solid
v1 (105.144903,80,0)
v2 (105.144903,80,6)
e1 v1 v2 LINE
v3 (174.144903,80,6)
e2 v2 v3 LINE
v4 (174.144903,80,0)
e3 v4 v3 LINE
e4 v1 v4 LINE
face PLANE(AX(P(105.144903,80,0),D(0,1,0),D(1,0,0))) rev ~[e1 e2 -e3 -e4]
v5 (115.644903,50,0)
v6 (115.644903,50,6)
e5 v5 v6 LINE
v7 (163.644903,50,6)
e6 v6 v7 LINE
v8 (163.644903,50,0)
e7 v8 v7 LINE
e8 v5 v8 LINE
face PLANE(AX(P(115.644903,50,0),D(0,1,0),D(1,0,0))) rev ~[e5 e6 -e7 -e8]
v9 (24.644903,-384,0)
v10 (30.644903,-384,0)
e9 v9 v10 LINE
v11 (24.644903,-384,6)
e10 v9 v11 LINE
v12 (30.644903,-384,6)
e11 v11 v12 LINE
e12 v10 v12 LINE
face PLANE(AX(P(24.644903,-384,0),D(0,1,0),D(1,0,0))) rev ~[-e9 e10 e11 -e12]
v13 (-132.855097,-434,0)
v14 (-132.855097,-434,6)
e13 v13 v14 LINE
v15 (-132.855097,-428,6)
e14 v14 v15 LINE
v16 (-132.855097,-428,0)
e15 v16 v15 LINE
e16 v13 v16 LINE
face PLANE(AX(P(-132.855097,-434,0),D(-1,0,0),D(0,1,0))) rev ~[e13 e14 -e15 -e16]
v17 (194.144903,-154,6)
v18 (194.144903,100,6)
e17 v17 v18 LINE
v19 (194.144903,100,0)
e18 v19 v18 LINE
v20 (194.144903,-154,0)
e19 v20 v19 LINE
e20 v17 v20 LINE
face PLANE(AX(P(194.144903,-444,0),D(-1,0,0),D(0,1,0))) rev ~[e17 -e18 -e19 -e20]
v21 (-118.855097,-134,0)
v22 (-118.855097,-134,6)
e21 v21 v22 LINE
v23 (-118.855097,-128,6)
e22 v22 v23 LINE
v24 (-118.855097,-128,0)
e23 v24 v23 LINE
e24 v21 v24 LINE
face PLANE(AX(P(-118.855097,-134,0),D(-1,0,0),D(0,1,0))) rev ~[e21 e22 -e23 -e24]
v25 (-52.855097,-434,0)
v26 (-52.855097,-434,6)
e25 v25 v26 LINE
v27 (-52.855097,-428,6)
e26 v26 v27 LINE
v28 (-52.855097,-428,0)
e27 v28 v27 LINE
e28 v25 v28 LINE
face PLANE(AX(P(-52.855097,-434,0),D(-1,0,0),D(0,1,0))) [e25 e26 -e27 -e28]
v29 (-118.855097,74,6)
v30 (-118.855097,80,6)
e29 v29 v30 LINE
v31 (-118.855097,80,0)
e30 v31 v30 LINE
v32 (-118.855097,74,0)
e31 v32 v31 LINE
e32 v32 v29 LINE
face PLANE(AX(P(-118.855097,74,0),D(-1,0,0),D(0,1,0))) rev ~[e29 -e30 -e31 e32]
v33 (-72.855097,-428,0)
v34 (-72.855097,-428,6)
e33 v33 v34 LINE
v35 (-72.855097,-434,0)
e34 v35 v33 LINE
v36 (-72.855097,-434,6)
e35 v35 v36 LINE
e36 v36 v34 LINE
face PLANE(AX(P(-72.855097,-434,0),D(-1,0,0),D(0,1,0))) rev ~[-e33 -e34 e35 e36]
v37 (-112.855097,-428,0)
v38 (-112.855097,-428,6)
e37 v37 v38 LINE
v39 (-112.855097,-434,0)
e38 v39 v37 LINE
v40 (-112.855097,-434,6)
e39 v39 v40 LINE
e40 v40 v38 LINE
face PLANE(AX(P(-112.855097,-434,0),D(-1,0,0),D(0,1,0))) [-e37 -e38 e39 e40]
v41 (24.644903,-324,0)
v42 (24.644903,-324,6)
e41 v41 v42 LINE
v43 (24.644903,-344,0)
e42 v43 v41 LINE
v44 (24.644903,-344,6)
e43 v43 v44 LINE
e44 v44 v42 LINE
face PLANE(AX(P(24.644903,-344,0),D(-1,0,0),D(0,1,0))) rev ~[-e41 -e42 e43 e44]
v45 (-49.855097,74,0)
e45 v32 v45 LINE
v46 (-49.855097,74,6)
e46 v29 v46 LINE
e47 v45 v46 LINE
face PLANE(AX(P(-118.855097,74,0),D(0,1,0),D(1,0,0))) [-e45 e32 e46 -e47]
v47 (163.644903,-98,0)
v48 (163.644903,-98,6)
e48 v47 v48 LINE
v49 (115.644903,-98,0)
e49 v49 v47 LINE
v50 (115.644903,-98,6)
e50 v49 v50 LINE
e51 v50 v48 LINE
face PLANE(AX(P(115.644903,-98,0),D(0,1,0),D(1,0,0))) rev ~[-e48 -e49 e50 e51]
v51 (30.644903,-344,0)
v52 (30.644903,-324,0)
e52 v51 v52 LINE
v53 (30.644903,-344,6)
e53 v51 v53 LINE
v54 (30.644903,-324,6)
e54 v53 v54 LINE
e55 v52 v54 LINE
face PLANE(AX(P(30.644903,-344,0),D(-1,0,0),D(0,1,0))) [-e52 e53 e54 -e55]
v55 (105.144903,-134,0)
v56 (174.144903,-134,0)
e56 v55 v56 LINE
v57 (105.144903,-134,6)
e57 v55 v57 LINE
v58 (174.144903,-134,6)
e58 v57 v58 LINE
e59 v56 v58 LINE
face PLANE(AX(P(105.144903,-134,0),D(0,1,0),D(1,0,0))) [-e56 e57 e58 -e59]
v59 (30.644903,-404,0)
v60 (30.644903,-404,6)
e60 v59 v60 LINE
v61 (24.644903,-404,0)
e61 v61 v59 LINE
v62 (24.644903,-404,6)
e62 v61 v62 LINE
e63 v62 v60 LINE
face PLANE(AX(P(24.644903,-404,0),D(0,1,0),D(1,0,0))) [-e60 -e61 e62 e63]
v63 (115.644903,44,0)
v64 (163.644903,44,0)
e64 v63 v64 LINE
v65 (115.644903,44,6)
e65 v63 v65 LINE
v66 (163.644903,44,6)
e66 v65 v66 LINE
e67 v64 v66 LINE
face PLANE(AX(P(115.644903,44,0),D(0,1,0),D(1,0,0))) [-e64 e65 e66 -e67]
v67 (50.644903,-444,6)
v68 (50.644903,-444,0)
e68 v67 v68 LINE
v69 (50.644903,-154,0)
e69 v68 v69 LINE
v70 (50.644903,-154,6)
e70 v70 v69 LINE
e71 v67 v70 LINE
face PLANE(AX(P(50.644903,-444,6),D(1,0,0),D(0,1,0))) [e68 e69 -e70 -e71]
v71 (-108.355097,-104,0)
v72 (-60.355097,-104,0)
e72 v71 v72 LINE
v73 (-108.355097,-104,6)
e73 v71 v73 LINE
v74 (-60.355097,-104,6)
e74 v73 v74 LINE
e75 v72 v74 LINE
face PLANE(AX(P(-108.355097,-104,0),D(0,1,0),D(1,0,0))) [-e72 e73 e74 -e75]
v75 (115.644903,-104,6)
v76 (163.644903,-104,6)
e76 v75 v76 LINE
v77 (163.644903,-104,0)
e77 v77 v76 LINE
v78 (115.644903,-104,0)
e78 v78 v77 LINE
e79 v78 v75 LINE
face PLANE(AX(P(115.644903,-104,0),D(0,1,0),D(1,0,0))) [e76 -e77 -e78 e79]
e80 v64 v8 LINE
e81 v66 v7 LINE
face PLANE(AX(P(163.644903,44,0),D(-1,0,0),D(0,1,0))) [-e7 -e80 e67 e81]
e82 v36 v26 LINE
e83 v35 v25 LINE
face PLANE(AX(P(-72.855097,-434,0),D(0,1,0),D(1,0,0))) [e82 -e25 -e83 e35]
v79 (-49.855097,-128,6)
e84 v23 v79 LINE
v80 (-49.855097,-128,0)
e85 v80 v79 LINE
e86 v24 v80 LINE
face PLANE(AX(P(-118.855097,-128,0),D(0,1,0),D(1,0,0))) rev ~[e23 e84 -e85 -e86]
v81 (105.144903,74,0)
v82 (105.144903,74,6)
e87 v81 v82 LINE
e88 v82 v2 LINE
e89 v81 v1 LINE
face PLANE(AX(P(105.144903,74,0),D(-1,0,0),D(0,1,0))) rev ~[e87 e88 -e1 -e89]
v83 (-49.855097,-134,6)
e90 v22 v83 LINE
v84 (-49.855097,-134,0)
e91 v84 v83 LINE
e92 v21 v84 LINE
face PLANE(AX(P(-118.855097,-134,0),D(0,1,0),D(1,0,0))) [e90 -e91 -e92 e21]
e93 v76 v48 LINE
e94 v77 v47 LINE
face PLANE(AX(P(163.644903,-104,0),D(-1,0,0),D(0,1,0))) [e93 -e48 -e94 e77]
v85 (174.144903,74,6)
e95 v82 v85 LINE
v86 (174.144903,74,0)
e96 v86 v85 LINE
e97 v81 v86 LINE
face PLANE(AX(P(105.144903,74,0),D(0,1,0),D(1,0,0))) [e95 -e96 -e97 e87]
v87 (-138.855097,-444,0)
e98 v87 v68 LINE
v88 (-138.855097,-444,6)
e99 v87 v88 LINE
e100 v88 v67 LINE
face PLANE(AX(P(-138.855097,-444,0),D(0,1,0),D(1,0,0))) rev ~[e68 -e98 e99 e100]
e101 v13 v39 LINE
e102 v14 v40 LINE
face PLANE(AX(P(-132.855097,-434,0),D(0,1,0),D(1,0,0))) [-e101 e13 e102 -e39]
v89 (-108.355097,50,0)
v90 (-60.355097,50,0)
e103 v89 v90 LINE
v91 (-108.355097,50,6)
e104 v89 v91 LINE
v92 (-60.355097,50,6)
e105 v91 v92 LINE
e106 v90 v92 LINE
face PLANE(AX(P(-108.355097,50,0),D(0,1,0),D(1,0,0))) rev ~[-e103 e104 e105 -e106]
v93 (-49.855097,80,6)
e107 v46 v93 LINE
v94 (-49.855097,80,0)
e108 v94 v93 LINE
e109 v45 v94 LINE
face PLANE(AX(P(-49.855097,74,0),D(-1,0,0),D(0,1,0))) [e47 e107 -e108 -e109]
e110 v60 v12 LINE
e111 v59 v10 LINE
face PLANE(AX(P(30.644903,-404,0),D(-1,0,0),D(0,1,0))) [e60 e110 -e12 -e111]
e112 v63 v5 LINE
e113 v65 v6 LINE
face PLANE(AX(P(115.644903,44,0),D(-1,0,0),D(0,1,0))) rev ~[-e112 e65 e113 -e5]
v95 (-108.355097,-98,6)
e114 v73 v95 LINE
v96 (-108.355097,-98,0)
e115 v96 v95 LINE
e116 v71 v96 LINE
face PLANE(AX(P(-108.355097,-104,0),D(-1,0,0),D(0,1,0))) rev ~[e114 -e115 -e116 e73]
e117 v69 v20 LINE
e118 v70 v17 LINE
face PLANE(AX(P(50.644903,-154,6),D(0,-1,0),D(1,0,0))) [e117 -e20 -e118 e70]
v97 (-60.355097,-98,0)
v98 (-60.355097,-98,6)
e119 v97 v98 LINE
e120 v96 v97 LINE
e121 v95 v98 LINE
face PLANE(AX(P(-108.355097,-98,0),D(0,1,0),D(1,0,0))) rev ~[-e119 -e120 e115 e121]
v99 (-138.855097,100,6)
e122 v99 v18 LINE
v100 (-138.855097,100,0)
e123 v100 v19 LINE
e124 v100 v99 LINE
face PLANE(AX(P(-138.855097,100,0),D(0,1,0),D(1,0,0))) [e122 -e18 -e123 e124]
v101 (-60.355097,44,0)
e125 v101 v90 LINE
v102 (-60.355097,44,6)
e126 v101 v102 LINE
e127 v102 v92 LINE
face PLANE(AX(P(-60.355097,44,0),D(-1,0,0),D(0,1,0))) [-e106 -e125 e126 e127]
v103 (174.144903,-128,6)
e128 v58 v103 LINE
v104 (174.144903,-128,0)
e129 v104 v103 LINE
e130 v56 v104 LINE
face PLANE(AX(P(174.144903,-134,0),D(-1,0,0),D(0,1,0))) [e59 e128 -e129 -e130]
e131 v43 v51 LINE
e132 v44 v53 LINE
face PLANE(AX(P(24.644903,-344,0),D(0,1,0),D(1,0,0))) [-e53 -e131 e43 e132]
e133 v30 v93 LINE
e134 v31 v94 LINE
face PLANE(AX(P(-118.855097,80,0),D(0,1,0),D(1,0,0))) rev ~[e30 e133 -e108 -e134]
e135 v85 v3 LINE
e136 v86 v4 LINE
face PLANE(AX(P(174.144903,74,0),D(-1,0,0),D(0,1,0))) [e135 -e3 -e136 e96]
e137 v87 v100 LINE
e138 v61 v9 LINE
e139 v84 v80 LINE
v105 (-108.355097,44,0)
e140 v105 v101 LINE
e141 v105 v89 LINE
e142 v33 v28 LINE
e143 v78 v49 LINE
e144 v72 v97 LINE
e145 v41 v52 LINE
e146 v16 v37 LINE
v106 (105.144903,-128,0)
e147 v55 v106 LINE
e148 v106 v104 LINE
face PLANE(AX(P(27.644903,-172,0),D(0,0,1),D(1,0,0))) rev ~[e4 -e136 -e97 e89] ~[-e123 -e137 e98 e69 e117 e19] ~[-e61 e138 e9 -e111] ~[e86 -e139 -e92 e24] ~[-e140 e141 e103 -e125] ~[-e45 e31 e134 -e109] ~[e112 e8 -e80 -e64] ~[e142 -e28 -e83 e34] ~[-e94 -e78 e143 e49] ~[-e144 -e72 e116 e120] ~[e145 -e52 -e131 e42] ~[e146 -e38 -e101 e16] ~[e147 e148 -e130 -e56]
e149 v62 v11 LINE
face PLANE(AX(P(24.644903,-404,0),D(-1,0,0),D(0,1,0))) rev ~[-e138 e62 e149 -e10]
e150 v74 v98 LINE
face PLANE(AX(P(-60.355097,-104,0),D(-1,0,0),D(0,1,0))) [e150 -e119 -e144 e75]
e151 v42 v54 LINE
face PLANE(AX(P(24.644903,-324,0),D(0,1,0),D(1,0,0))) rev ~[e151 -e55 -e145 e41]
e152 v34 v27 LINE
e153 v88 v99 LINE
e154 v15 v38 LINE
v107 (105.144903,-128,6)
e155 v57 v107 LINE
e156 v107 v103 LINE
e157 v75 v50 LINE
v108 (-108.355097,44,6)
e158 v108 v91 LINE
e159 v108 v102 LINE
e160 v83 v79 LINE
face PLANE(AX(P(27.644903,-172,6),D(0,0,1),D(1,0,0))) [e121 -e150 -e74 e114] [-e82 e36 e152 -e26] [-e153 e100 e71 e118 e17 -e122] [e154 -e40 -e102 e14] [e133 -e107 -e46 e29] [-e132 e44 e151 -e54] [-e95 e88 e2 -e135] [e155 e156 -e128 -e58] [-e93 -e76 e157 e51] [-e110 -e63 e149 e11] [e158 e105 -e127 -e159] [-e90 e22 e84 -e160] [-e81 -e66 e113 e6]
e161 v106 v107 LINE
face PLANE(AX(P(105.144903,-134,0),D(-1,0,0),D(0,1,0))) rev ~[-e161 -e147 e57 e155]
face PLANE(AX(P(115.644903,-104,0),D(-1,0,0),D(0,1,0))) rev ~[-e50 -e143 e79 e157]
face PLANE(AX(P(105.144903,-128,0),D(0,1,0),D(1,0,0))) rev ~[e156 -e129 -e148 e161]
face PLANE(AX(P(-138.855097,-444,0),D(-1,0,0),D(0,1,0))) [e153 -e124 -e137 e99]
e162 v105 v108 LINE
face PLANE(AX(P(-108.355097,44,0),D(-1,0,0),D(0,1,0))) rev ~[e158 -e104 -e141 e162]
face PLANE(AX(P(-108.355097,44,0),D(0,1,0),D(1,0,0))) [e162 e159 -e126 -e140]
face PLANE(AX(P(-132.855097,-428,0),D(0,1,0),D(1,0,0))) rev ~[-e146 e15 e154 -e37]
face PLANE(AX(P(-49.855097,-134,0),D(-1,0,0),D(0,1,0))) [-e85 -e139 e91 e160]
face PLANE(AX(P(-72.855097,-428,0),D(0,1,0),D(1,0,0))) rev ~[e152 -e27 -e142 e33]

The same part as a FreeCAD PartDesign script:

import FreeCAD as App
import Part
import Sketcher

V = App.Vector
Q = App.Units.Quantity


def add_polygon(sketch, points):
    """Adds a closed chain of lines whose ends are joined by coincident constraints."""
    first, n = sketch.GeometryCount, len(points)
    for a, b in zip(points, points[1:] + points[:1]):
        sketch.addGeometry(Part.LineSegment(App.Vector(*a, 0), App.Vector(*b, 0)), False)
    for i in range(n):
        sketch.addConstraint(Sketcher.Constraint("Coincident", first + i, 2, first + (i + 1) % n, 1))

doc = App.newDocument("Part")
body = doc.addObject("PartDesign::Body", "Body")

sketch1 = body.newObject("Sketcher::SketchObject", "Sketch")
sketch1.AttachmentSupport = (doc.getObject("XY_Plane"), [""])
sketch1.MapMode = "FlatFace"
add_polygon(sketch1, [(-139, 100), (-139, -444), (194, -444), (194, 100)])
add_polygon(sketch1, [(-113, -434), (-133, -434), (-133, -428), (-113, -428)])
add_polygon(sketch1, [(-53, -434), (-73, -434), (-73, -428), (-53, -428)])
add_polygon(sketch1, [(31, -404), (25, -404), (25, -384), (31, -384)])
add_polygon(sketch1, [(31, -344), (25, -344), (25, -324), (31, -324)])
add_polygon(sketch1, [(-50, -134), (-119, -134), (-119, -128), (-50, -128)])
add_polygon(sketch1, [(-60, -104), (-108, -104), (-108, -98), (-60, -98)])
add_polygon(sketch1, [(-60, 44), (-108, 44), (-108, 50), (-60, 50)])
add_polygon(sketch1, [(-50, 74), (-119, 74), (-119, 80), (-50, 80)])
add_polygon(sketch1, [(174, -134), (105, -134), (105, -128), (174, -128)])
add_polygon(sketch1, [(164, -104), (116, -104), (116, -98), (164, -98)])
add_polygon(sketch1, [(164, 44), (116, 44), (116, 50), (164, 50)])
add_polygon(sketch1, [(174, 74), (105, 74), (105, 80), (174, 80)])
sketch1.addConstraint([
    Sketcher.Constraint("Vertical", 0),
    Sketcher.Constraint("Horizontal", 1),
    Sketcher.Constraint("Vertical", 2),
    Sketcher.Constraint("Horizontal", 3),
    Sketcher.Constraint("Horizontal", 4),
    Sketcher.Constraint("Vertical", 5),
    Sketcher.Constraint("Horizontal", 6),
    Sketcher.Constraint("Vertical", 7),
    Sketcher.Constraint("Horizontal", 8),
    Sketcher.Constraint("Vertical", 9),
    Sketcher.Constraint("Horizontal", 10),
    Sketcher.Constraint("Vertical", 11),
    Sketcher.Constraint("Horizontal", 12),
    Sketcher.Constraint("Vertical", 13),
    Sketcher.Constraint("Horizontal", 14),
    Sketcher.Constraint("Vertical", 15),
    Sketcher.Constraint("Horizontal", 16),
    Sketcher.Constraint("Vertical", 17),
    Sketcher.Constraint("Horizontal", 18),
    Sketcher.Constraint("Vertical", 19),
    Sketcher.Constraint("Horizontal", 20),
    Sketcher.Constraint("Vertical", 21),
    Sketcher.Constraint("Horizontal", 22),
    Sketcher.Constraint("Vertical", 23),
    Sketcher.Constraint("Horizontal", 24),
    Sketcher.Constraint("Vertical", 25),
    Sketcher.Constraint("Horizontal", 26),
    Sketcher.Constraint("Vertical", 27),
    Sketcher.Constraint("Horizontal", 28),
    Sketcher.Constraint("Vertical", 29),
    Sketcher.Constraint("Horizontal", 30),
    Sketcher.Constraint("Vertical", 31),
    Sketcher.Constraint("Horizontal", 32),
    Sketcher.Constraint("Vertical", 33),
    Sketcher.Constraint("Horizontal", 34),
    Sketcher.Constraint("Vertical", 35),
    Sketcher.Constraint("Horizontal", 36),
    Sketcher.Constraint("Vertical", 37),
    Sketcher.Constraint("Horizontal", 38),
    Sketcher.Constraint("Vertical", 39),
    Sketcher.Constraint("Horizontal", 40),
    Sketcher.Constraint("Vertical", 41),
    Sketcher.Constraint("Horizontal", 42),
    Sketcher.Constraint("Vertical", 43),
    Sketcher.Constraint("Horizontal", 44),
    Sketcher.Constraint("Vertical", 45),
    Sketcher.Constraint("Horizontal", 46),
    Sketcher.Constraint("Vertical", 47),
    Sketcher.Constraint("Horizontal", 48),
    Sketcher.Constraint("Vertical", 49),
    Sketcher.Constraint("Horizontal", 50),
    Sketcher.Constraint("Vertical", 51),
    Sketcher.Constraint("Horizontal", 7, 2, 8, 2),
    Sketcher.Constraint("Horizontal", 6, 2, 9, 2),
    Sketcher.Constraint("Horizontal", 23, 2, 36, 2),
    Sketcher.Constraint("Horizontal", 22, 2, 37, 2),
    Sketcher.Constraint("Horizontal", 27, 2, 40, 2),
    Sketcher.Constraint("Horizontal", 26, 2, 41, 2),
    Sketcher.Constraint("Horizontal", 31, 2, 44, 2),
    Sketcher.Constraint("Horizontal", 30, 2, 45, 2),
    Sketcher.Constraint("Horizontal", 35, 2, 48, 2),
    Sketcher.Constraint("Horizontal", 34, 2, 49, 2),
    Sketcher.Constraint("Vertical", 13, 2, 16, 2),
    Sketcher.Constraint("Vertical", 15, 2, 18, 2),
    Sketcher.Constraint("Vertical", 25, 2, 28, 2),
    Sketcher.Constraint("Vertical", 27, 2, 30, 2),
    Sketcher.Constraint("Vertical", 21, 2, 32, 2),
    Sketcher.Constraint("Vertical", 23, 2, 34, 2),
    Sketcher.Constraint("Vertical", 41, 2, 44, 2),
    Sketcher.Constraint("Vertical", 43, 2, 46, 2),
    Sketcher.Constraint("Vertical", 37, 2, 48, 2),
    Sketcher.Constraint("Vertical", 39, 2, 50, 2),
    Sketcher.Constraint("Equal", 6, 8),
    Sketcher.Constraint("Equal", 34, 36),
    Sketcher.Constraint("Equal", 30, 40),
    Sketcher.Constraint("Equal", 18, 5),
    Sketcher.Constraint("Equal", 10, 13),
    Sketcher.Constraint("Equal", 15, 17),
    Sketcher.Constraint("Equal", 11, 21),
    Sketcher.Constraint("Equal", 23, 25),
    Sketcher.Constraint("Equal", 27, 29),
    Sketcher.Constraint("Equal", 31, 33),
    Sketcher.Constraint("DistanceX", 1, 1, 1, 2, Q("333 mm")),
    Sketcher.Constraint("DistanceX", 4, 2, 4, 1, Q("20 mm")),
    Sketcher.Constraint("DistanceX", 12, 2, 12, 1, Q("6 mm")),
    Sketcher.Constraint("DistanceX", 20, 2, 20, 1, Q("69 mm")),
    Sketcher.Constraint("DistanceX", 24, 2, 24, 1, Q("48 mm")),
    Sketcher.Constraint("DistanceY", 0, 2, 0, 1, Q("544 mm")),
    Sketcher.Constraint("DistanceY", 0, 2, -1, 1, Q("444 mm")),
    Sketcher.Constraint("DistanceY", 4, 2, -1, 1, Q("434 mm")),
    Sketcher.Constraint("DistanceY", 12, 2, -1, 1, Q("404 mm")),
    Sketcher.Constraint("DistanceY", 16, 2, -1, 1, Q("344 mm")),
    Sketcher.Constraint("DistanceY", 20, 2, -1, 1, Q("134 mm")),
    Sketcher.Constraint("DistanceY", 24, 2, -1, 1, Q("104 mm")),
    Sketcher.Constraint("DistanceY", -1, 1, 28, 2, Q("44 mm")),
    Sketcher.Constraint("DistanceY", -1, 1, 32, 2, Q("74 mm")),
    Sketcher.Constraint("DistanceX", 0, 2, 4, 2, Q("6 mm")),
    Sketcher.Constraint("DistanceX", 7, 2, 8, 2, Q("40 mm")),
    Sketcher.Constraint("DistanceX", 3, 2, 20, 2, Q("20 mm")),
    Sketcher.Constraint("DistanceX", 23, 2, 36, 2, Q("155 mm")),
    Sketcher.Constraint("DistanceX", 10, 2, 12, 2, Q("77.5 mm")),
    Sketcher.Constraint("DistanceX", 21, 2, 24, 2, Q("10.5 mm")),
    Sketcher.Constraint("DistanceX", 37, 2, 40, 2, Q("10.5 mm")),
    Sketcher.Constraint("DistanceX", 0, 2, -1, 1, Q("138.855097 mm")),
])
pad1 = body.newObject("PartDesign::Pad", "Pad")
pad1.Profile = sketch1
pad1.Length = 6

sketch2 = body.newObject("Sketcher::SketchObject", "Sketch001")
sketch2.AttachmentSupport = (doc.getObject("XY_Plane"), [""])
sketch2.MapMode = "FlatFace"
sketch2.AttachmentOffset = App.Placement(V(0, 0, 6), App.Rotation())
add_polygon(sketch2, [(51, -154), (51, -444), (194, -444), (194, -154)])
sketch2.addConstraint([
    Sketcher.Constraint("Vertical", 0),
    Sketcher.Constraint("Horizontal", 1),
    Sketcher.Constraint("Vertical", 2),
    Sketcher.Constraint("Horizontal", 3),
    Sketcher.Constraint("DistanceY", 0, 2, 0, 1, Q("290 mm")),
    Sketcher.Constraint("DistanceX", 1, 1, 1, 2, Q("143.5 mm")),
    Sketcher.Constraint("DistanceY", 0, 2, -1, 1, Q("444 mm")),
    Sketcher.Constraint("DistanceX", -1, 1, 0, 2, Q("50.644903 mm")),
])
pocket1 = body.newObject("PartDesign::Pocket", "Pocket")
pocket1.Profile = sketch2
pocket1.Length = 6

doc.recompute()
